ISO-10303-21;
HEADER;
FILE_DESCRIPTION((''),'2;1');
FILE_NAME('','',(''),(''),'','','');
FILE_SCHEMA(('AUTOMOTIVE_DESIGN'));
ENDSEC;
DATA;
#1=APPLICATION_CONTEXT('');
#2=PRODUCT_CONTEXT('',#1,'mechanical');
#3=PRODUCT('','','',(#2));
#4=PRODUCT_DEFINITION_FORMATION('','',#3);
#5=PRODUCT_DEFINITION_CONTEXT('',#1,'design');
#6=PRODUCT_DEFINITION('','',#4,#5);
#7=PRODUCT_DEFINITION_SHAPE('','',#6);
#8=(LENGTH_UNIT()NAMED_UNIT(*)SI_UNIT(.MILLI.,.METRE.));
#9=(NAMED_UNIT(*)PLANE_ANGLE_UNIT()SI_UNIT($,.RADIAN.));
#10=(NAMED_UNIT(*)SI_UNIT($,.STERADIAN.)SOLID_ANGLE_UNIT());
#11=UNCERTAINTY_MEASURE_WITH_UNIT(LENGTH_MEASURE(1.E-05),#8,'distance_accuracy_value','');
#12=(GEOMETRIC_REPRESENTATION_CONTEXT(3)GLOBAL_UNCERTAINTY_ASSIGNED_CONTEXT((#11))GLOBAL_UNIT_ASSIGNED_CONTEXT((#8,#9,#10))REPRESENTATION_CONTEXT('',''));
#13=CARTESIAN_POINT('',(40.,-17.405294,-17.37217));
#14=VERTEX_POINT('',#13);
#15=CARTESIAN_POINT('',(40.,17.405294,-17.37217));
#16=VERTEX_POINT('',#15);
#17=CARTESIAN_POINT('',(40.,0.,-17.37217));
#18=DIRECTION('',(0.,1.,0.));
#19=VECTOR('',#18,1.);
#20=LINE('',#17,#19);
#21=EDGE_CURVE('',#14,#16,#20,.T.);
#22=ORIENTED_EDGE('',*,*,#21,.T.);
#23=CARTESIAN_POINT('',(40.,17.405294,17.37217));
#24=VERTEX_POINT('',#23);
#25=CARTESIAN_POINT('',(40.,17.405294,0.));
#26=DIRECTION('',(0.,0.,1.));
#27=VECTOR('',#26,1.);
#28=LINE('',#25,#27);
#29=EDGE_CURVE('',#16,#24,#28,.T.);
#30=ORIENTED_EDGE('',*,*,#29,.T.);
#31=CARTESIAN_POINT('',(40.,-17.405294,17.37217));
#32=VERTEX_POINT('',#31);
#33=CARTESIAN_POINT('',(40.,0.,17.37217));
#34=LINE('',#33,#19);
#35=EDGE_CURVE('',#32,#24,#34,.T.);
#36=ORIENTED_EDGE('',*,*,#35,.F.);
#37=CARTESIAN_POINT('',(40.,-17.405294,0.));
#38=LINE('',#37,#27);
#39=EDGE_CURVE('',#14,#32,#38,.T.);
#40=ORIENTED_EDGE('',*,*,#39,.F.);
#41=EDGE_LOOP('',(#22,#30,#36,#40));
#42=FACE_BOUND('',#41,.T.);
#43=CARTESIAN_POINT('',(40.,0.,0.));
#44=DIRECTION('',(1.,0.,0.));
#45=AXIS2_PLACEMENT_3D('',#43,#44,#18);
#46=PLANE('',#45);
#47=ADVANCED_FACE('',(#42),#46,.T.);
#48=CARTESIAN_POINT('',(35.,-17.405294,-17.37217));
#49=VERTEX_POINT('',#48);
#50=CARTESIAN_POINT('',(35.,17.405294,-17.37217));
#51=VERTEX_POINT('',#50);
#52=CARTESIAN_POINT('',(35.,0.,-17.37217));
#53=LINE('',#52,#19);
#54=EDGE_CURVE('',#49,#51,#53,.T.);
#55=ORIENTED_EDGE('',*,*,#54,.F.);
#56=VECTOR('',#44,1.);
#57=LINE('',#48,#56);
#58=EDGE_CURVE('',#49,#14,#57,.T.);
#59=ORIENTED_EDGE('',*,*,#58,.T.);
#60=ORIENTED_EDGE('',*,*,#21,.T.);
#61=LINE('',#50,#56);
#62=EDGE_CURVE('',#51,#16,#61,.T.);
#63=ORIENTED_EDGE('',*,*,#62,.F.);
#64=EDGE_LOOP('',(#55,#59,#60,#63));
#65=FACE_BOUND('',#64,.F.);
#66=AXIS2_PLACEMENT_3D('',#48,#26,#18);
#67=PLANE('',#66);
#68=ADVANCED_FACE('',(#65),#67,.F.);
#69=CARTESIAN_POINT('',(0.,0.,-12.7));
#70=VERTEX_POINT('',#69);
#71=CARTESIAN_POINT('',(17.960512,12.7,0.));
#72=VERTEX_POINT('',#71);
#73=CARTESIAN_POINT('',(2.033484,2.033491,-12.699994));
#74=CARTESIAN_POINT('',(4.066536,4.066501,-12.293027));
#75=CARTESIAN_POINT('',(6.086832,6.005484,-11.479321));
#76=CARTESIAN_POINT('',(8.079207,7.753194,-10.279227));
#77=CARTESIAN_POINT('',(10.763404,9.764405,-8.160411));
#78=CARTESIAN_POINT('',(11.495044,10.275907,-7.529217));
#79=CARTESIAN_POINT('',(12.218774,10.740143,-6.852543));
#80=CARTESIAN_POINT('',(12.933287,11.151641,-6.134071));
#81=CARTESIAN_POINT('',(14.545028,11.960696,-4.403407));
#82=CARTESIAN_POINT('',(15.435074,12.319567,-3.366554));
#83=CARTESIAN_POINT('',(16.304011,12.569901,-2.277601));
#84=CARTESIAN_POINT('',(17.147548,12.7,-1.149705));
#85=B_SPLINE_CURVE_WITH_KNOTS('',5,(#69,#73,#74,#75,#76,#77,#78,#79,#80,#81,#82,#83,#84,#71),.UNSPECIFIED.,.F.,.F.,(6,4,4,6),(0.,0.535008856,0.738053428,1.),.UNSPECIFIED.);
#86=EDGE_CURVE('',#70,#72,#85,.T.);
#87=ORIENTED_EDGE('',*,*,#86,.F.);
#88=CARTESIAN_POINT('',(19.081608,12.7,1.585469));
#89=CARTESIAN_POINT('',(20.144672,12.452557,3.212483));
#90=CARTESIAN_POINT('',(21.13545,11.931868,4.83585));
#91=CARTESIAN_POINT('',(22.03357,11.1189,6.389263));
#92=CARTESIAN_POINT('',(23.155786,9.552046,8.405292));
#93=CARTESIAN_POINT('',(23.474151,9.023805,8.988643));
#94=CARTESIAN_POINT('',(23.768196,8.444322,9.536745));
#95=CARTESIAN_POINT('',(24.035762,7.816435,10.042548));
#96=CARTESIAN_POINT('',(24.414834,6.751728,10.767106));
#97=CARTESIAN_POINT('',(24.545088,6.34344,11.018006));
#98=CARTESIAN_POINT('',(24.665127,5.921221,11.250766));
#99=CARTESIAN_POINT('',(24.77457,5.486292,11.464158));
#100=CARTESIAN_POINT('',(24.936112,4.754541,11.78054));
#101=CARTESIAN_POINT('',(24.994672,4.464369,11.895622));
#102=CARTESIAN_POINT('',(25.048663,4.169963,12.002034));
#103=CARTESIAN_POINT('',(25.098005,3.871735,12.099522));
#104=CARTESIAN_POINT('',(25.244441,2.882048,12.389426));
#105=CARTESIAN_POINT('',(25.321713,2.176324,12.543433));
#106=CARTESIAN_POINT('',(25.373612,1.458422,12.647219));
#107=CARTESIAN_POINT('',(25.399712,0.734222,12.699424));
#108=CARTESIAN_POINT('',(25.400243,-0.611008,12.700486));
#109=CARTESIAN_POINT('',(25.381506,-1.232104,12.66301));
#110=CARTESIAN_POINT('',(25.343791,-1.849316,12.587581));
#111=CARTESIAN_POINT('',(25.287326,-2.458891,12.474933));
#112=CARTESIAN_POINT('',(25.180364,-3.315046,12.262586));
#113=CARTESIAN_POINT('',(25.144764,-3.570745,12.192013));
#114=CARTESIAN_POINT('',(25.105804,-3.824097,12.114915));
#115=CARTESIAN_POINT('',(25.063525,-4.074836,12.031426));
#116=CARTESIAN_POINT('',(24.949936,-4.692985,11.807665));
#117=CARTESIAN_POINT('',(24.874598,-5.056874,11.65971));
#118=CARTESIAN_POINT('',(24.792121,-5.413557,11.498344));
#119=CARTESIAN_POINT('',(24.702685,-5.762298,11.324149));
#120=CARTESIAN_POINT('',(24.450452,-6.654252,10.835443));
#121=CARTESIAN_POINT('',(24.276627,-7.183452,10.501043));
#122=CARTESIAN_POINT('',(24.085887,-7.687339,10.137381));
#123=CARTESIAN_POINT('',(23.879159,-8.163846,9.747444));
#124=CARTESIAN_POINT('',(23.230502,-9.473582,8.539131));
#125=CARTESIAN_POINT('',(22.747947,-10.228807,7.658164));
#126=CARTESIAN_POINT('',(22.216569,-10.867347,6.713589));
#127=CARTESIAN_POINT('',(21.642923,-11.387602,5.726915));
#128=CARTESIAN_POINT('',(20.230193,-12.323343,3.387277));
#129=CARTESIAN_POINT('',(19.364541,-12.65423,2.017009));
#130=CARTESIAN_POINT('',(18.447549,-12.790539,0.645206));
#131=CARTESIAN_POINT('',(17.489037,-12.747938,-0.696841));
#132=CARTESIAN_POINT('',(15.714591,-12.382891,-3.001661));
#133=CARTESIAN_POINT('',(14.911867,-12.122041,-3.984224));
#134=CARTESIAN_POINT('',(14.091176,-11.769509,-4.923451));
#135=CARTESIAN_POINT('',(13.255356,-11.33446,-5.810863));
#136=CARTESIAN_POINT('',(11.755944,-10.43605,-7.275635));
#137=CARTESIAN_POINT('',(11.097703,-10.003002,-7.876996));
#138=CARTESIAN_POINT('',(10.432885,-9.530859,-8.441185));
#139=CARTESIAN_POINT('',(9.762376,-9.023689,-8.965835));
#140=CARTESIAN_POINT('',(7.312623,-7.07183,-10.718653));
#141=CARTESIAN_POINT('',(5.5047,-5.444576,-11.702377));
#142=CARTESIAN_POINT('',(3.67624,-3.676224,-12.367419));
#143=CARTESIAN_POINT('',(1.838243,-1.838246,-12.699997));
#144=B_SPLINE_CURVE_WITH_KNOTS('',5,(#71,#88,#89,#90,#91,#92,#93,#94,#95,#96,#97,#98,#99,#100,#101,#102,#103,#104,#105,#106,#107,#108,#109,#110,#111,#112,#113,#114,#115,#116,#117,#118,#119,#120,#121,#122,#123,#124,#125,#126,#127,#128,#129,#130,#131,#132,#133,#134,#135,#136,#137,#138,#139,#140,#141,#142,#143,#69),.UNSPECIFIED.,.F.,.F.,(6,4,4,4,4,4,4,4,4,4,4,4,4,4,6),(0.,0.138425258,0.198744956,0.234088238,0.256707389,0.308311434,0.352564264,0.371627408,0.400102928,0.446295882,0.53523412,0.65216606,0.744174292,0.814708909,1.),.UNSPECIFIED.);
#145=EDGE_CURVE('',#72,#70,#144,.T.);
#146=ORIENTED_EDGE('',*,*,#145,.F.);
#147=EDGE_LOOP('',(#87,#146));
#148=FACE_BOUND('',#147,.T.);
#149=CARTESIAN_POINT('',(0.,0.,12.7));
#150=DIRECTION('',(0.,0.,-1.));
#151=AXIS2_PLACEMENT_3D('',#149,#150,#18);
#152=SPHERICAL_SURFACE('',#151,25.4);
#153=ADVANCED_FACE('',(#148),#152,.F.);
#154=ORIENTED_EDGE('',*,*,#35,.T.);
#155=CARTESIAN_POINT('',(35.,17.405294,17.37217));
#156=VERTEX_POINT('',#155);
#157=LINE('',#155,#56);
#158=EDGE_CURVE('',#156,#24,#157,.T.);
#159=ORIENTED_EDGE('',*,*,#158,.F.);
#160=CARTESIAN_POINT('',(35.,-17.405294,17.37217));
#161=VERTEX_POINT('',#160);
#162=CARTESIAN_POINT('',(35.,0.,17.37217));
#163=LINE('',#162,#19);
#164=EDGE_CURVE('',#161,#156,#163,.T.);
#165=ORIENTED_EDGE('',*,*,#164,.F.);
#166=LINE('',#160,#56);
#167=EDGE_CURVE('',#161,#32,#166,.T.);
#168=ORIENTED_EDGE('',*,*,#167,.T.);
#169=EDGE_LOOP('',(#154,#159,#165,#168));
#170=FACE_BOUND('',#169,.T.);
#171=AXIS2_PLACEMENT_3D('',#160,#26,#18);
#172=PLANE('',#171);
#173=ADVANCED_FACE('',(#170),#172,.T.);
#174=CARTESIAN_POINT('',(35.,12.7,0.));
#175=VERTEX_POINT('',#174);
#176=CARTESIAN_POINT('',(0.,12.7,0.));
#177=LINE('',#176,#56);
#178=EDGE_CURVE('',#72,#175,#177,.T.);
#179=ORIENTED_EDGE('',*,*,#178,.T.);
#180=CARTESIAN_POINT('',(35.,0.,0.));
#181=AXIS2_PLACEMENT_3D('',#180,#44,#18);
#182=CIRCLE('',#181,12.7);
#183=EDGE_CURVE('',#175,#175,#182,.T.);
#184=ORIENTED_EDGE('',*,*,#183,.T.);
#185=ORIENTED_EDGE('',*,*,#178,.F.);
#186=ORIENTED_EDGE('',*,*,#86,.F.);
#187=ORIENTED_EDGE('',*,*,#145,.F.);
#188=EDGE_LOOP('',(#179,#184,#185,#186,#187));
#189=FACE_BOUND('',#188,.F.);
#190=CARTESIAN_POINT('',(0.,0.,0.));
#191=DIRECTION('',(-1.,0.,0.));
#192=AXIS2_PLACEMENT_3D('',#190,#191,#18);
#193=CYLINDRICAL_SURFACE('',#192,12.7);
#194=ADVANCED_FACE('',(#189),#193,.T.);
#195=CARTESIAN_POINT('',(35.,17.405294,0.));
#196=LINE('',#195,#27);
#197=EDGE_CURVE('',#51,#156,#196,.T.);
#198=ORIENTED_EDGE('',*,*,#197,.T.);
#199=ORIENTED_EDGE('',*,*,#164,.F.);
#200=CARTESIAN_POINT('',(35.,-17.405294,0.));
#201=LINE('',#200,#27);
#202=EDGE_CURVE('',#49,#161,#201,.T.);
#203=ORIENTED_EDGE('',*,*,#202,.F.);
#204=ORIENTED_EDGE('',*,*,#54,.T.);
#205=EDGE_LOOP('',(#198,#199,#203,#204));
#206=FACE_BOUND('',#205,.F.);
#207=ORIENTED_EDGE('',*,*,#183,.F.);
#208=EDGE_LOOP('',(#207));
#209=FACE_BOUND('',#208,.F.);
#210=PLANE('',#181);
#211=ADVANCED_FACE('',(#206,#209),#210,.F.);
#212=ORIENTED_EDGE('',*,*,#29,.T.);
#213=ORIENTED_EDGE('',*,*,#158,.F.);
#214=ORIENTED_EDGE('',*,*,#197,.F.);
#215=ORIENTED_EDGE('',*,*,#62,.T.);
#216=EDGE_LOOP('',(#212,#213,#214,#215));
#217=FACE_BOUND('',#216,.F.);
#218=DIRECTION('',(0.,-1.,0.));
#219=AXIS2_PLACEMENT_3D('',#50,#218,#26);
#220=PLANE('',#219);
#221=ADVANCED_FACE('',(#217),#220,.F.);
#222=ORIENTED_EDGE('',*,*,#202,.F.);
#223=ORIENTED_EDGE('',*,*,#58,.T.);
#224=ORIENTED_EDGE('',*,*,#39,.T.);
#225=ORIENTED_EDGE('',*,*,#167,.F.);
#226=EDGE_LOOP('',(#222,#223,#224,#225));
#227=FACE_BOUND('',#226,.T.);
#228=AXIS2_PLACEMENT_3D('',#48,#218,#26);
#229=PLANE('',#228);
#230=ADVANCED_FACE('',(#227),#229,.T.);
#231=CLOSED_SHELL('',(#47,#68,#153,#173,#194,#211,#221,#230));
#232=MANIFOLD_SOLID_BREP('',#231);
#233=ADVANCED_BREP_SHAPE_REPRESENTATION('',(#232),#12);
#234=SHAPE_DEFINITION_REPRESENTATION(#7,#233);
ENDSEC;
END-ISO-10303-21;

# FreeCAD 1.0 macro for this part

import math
import FreeCAD as App
import Part
import Sketcher
Q = App.Units.Quantity

doc = App.newDocument("Part")
body = doc.addObject("PartDesign::Body", "Body")

# Sketch on YZ plane
sketch1 = body.newObject("Sketcher::SketchObject", "Sketch")
sketch1.AttachmentSupport = (doc.getObject("YZ_Plane"), [""])
sketch1.MapMode = "FlatFace"
sketch1.addGeometry(Part.Circle(App.Vector(0, 0, 0), App.Vector(0, 0, 1), 13), False)
sketch1.addConstraint([
    Sketcher.Constraint("Coincident", 0, 3, -1, 1),
    Sketcher.Constraint("Diameter", 0, Q("25.4 mm")),
])
pad1 = body.newObject("PartDesign::Pad", "Pad")
pad1.Profile = sketch1
pad1.Length = 35

# Sketch on YZ plane
sketch2 = body.newObject("Sketcher::SketchObject", "Sketch001")
sketch2.AttachmentSupport = (doc.getObject("YZ_Plane"), [""])
sketch2.MapMode = "FlatFace"
sketch2.AttachmentOffset = App.Placement(App.Vector(0, 0, 35), App.Rotation())
sketch2.addGeometry([
    Part.LineSegment(App.Vector(-17, 17, 0), App.Vector(-17, -17, 0)),
    Part.LineSegment(App.Vector(-17, -17, 0), App.Vector(17, -17, 0)),
    Part.LineSegment(App.Vector(17, -17, 0), App.Vector(17, 17, 0)),
    Part.LineSegment(App.Vector(17, 17, 0), App.Vector(-17, 17, 0)),
], False)
sketch2.addConstraint([
    Sketcher.Constraint("Coincident", 0, 2, 1, 1),
    Sketcher.Constraint("Coincident", 1, 2, 2, 1),
    Sketcher.Constraint("Coincident", 2, 2, 3, 1),
    Sketcher.Constraint("Coincident", 3, 2, 0, 1),
    Sketcher.Constraint("Vertical", 0),
    Sketcher.Constraint("Horizontal", 1),
    Sketcher.Constraint("Vertical", 2),
    Sketcher.Constraint("Horizontal", 3),
    Sketcher.Constraint("Symmetric", 0, 2, 2, 2, -1, 1),
    Sketcher.Constraint("DistanceX", 1, 1, 1, 2, Q("34.810588 mm")),
    Sketcher.Constraint("DistanceY", 0, 2, 0, 1, Q("34.74434 mm")),
])
pad2 = body.newObject("PartDesign::Pad", "Pad001")
pad2.Profile = sketch2
pad2.Length = 5

# Sketch on YZ plane
sketch3 = body.newObject("Sketcher::SketchObject", "Sketch002")
sketch3.AttachmentSupport = (doc.getObject("YZ_Plane"), [""])
sketch3.MapMode = "FlatFace"
sketch3.addGeometry([
    Part.ArcOfCircle(Part.Circle(App.Vector(0, 13, 0), App.Vector(0, 0, 1), 25), math.radians(-90), math.radians(90)),
    Part.LineSegment(App.Vector(0, -13, 0), App.Vector(0, 38, 0)),
], False)
sketch3.addConstraint([
    Sketcher.Constraint("Coincident", 0, 1, 1, 1),
    Sketcher.Constraint("Coincident", 1, 2, 0, 2),
    Sketcher.Constraint("Vertical", 1),
    Sketcher.Constraint("PointOnObject", 0, 3, -2),
    Sketcher.Constraint("PointOnObject", 0, 1, -2),
    Sketcher.Constraint("Radius", 0, Q("25.4 mm")),
    Sketcher.Constraint("DistanceY", -1, 1, 0, 3, Q("12.7 mm")),
])
groove = body.newObject("PartDesign::Groove", "Groove")
groove.Profile = sketch3
groove.ReferenceAxis = (sketch3, ["V_Axis"])
groove.Angle = 360

doc.recompute()
